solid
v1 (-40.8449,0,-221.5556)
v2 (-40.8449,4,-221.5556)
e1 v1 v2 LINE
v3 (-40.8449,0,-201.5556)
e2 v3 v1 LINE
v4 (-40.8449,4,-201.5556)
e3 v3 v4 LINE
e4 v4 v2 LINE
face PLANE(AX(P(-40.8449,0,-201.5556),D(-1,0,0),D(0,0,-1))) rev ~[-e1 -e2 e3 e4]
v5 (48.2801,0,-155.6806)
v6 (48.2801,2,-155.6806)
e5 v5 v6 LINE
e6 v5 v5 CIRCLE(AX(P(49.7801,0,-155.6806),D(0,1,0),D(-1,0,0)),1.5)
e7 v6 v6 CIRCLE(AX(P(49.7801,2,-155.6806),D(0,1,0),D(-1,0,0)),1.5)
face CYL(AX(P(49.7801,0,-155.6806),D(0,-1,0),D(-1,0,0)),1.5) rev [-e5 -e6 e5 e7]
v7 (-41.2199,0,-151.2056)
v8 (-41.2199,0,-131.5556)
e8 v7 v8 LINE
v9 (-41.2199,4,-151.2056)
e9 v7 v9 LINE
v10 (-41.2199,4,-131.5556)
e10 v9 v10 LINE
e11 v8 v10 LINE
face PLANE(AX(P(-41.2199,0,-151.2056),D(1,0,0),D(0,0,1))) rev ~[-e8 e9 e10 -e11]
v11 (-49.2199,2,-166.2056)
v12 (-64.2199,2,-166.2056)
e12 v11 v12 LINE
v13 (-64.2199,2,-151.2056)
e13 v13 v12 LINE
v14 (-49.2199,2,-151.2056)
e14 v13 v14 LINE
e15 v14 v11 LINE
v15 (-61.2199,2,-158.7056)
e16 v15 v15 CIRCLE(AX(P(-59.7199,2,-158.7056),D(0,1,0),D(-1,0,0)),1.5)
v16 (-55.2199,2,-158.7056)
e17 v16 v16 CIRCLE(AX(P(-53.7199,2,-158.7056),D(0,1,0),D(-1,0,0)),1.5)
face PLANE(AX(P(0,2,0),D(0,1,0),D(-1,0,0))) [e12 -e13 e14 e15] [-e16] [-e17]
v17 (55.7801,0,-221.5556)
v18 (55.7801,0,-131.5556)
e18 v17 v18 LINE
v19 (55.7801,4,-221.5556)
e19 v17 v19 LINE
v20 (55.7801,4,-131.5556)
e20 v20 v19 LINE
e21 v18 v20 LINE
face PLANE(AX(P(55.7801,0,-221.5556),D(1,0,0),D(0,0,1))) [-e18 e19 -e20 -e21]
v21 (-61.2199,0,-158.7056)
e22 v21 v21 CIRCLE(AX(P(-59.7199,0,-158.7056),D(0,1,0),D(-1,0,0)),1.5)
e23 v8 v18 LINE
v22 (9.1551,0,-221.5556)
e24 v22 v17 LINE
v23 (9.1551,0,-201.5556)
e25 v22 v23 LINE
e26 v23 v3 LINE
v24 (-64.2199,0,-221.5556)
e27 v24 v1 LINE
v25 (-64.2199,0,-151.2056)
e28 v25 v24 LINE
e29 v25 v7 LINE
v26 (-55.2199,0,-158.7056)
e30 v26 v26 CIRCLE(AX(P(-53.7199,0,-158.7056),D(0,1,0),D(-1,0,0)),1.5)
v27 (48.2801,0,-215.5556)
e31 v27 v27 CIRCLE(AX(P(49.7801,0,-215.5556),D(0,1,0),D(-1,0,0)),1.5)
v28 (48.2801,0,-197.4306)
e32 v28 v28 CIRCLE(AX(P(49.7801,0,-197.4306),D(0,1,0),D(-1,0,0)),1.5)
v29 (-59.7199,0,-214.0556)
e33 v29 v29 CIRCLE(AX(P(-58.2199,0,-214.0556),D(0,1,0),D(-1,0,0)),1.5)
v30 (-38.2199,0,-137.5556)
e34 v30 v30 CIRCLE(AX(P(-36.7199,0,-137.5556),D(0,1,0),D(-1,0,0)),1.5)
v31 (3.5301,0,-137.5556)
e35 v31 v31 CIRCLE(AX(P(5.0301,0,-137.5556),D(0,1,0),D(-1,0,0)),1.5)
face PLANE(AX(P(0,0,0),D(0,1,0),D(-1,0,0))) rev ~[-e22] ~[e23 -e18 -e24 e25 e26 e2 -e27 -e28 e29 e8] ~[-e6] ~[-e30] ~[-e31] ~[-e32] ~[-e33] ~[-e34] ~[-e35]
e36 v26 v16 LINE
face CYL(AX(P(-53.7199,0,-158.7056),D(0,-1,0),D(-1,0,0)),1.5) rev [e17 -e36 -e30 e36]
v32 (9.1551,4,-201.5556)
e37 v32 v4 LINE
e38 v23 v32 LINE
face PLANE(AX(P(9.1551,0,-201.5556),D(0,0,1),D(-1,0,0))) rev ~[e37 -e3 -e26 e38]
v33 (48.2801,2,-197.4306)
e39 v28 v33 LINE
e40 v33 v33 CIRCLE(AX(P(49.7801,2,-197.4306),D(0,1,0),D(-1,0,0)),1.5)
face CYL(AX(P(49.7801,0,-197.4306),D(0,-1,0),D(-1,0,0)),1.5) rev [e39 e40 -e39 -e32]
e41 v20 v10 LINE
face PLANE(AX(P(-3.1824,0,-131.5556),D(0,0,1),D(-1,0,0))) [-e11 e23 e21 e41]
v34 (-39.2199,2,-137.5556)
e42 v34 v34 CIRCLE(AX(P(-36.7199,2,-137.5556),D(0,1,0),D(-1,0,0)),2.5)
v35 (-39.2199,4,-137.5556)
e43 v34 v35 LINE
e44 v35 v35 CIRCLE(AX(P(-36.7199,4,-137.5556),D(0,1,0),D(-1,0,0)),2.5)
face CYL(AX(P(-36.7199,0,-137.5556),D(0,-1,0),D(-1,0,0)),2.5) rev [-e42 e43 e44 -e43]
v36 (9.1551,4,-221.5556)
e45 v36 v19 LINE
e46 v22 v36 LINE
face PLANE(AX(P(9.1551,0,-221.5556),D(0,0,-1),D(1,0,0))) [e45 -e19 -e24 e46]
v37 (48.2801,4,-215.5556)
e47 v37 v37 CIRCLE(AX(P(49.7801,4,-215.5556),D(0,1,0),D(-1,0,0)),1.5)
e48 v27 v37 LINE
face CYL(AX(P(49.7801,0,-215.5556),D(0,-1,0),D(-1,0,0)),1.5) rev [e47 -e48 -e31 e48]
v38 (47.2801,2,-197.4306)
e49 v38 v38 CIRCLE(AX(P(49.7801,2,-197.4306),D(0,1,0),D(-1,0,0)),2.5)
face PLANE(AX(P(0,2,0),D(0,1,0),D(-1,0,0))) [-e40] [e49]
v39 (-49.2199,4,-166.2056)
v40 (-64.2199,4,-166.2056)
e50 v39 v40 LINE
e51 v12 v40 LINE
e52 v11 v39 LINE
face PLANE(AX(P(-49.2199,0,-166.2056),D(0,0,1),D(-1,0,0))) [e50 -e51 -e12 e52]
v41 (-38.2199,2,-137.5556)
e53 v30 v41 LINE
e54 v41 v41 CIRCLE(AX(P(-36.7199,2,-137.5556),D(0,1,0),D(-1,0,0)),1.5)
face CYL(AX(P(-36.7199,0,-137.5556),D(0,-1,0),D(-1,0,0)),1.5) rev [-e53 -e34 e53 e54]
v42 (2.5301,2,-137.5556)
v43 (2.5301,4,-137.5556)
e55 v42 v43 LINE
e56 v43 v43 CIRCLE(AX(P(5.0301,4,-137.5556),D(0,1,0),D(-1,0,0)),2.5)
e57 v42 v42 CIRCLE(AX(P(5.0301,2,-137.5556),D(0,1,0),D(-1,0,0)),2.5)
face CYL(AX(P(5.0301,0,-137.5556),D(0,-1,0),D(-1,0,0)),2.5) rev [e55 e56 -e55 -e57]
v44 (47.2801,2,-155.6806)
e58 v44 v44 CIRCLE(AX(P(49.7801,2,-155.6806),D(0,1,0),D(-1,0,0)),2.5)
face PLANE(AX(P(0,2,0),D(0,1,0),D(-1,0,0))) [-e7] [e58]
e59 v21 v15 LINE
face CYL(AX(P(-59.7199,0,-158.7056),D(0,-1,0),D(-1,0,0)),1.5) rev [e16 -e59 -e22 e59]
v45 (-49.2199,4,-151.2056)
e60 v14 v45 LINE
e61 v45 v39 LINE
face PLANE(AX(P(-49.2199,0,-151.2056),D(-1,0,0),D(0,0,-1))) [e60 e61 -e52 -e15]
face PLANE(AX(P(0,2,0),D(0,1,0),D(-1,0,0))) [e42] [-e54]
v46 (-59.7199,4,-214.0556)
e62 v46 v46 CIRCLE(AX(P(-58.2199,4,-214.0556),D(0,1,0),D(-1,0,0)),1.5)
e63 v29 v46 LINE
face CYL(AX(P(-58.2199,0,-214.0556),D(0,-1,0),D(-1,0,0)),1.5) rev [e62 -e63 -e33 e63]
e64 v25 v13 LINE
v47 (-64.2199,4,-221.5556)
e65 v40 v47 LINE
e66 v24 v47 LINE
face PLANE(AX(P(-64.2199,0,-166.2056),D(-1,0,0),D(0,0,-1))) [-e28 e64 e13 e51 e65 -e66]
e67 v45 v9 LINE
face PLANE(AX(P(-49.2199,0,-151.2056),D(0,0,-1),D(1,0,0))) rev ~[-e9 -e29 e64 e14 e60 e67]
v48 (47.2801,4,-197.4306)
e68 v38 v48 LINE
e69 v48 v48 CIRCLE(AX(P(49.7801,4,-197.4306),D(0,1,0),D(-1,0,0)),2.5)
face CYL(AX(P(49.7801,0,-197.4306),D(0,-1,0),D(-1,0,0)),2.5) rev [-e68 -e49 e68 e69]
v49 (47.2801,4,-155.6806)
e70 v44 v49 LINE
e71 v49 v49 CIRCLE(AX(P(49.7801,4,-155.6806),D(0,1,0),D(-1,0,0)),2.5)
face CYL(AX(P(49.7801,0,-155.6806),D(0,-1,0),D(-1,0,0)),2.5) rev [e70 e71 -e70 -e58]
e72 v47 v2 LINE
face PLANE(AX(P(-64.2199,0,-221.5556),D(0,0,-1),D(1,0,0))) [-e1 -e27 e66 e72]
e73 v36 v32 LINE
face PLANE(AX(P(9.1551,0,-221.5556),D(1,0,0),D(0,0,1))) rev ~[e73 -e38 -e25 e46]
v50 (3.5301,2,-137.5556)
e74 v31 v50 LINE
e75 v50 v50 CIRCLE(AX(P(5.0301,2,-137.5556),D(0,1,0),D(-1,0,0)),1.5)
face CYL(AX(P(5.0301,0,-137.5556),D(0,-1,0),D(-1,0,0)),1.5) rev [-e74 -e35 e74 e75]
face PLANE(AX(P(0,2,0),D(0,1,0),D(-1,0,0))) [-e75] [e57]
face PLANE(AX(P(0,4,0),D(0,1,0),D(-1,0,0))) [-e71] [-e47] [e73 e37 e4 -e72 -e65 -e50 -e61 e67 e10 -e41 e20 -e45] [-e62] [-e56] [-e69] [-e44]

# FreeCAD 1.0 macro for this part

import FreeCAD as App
import Part
import Sketcher

V = App.Vector

doc = App.newDocument("Part")
body = doc.addObject("PartDesign::Body", "Body")

# Sketch on XZ plane
sketch1 = body.newObject("Sketcher::SketchObject", "Sketch")
sketch1.AttachmentSupport = (doc.getObject("XZ_Plane"), [""])
sketch1.MapMode = "FlatFace"
sketch1.addGeometry(Part.LineSegment(V(-41.2, -151.2, 0), V(-41.2, -131.6, 0)), False)
sketch1.addGeometry(Part.LineSegment(V(-41.2, -131.6, 0), V(55.8, -131.6, 0)), False)
sketch1.addGeometry(Part.LineSegment(V(55.8, -131.6, 0), V(55.8, -221.6, 0)), False)
sketch1.addGeometry(Part.LineSegment(V(55.8, -221.6, 0), V(9.2, -221.6, 0)), False)
sketch1.addGeometry(Part.LineSegment(V(9.2, -221.6, 0), V(9.2, -201.6, 0)), False)
sketch1.addGeometry(Part.LineSegment(V(9.2, -201.6, 0), V(-40.8, -201.6, 0)), False)
sketch1.addGeometry(Part.LineSegment(V(-40.8, -201.6, 0), V(-40.8, -221.6, 0)), False)
sketch1.addGeometry(Part.LineSegment(V(-40.8, -221.6, 0), V(-64.2, -221.6, 0)), False)
sketch1.addGeometry(Part.LineSegment(V(-64.2, -221.6, 0), V(-64.2, -166.2, 0)), False)
sketch1.addGeometry(Part.LineSegment(V(-64.2, -166.2, 0), V(-49.2, -166.2, 0)), False)
sketch1.addGeometry(Part.LineSegment(V(-49.2, -166.2, 0), V(-49.2, -151.2, 0)), False)
sketch1.addGeometry(Part.LineSegment(V(-49.2, -151.2, 0), V(-41.2, -151.2, 0)), False)
sketch1.addGeometry(Part.Circle(V(49.8, -215.6, 0), V(0, 0, 1), 1.5), False)
sketch1.addGeometry(Part.Circle(V(49.8, -197.4, 0), V(0, 0, 1), 2.5), False)
sketch1.addGeometry(Part.Circle(V(-58.2, -214.1, 0), V(0, 0, 1), 1.5), False)
sketch1.addGeometry(Part.Circle(V(49.8, -155.7, 0), V(0, 0, 1), 2.5), False)
sketch1.addGeometry(Part.Circle(V(5, -137.6, 0), V(0, 0, 1), 2.5), False)
sketch1.addGeometry(Part.Circle(V(-36.7, -137.6, 0), V(0, 0, 1), 2.5), False)
sketch1.addConstraint(Sketcher.Constraint("Coincident", 0, 2, 1, 1))
sketch1.addConstraint(Sketcher.Constraint("Coincident", 1, 2, 2, 1))
sketch1.addConstraint(Sketcher.Constraint("Coincident", 2, 2, 3, 1))
sketch1.addConstraint(Sketcher.Constraint("Coincident", 3, 2, 4, 1))
sketch1.addConstraint(Sketcher.Constraint("Coincident", 4, 2, 5, 1))
sketch1.addConstraint(Sketcher.Constraint("Coincident", 5, 2, 6, 1))
sketch1.addConstraint(Sketcher.Constraint("Coincident", 6, 2, 7, 1))
sketch1.addConstraint(Sketcher.Constraint("Coincident", 7, 2, 8, 1))
sketch1.addConstraint(Sketcher.Constraint("Coincident", 8, 2, 9, 1))
sketch1.addConstraint(Sketcher.Constraint("Coincident", 9, 2, 10, 1))
sketch1.addConstraint(Sketcher.Constraint("Coincident", 10, 2, 11, 1))
sketch1.addConstraint(Sketcher.Constraint("Coincident", 11, 2, 0, 1))
sketch1.addConstraint(Sketcher.Constraint("Vertical", 0))
sketch1.addConstraint(Sketcher.Constraint("Horizontal", 1))
sketch1.addConstraint(Sketcher.Constraint("Vertical", 2))
sketch1.addConstraint(Sketcher.Constraint("Horizontal", 3))
sketch1.addConstraint(Sketcher.Constraint("Vertical", 4))
sketch1.addConstraint(Sketcher.Constraint("Horizontal", 5))
sketch1.addConstraint(Sketcher.Constraint("Vertical", 6))
sketch1.addConstraint(Sketcher.Constraint("Horizontal", 7))
sketch1.addConstraint(Sketcher.Constraint("Vertical", 8))
sketch1.addConstraint(Sketcher.Constraint("Horizontal", 9))
sketch1.addConstraint(Sketcher.Constraint("Vertical", 10))
sketch1.addConstraint(Sketcher.Constraint("Horizontal", 11))
sketch1.addConstraint(Sketcher.Constraint("Equal", 12, 14))
sketch1.addConstraint(Sketcher.Constraint("Equal", 13, 15))
sketch1.addConstraint(Sketcher.Constraint("Equal", 15, 16))
sketch1.addConstraint(Sketcher.Constraint("Equal", 16, 17))
sketch1.addConstraint(Sketcher.Constraint("Horizontal", 16, 3, 17, 3))
sketch1.addConstraint(Sketcher.Constraint("Horizontal", 3, 2, 6, 2))
sketch1.addConstraint(Sketcher.Constraint("Vertical", 12, 3, 13, 3))
sketch1.addConstraint(Sketcher.Constraint("Vertical", 13, 3, 15, 3))
sketch1.addConstraint(Sketcher.Constraint("Equal", 9, 10))
sketch1.addConstraint(Sketcher.Constraint("DistanceX", 11, 1, 11, 2, 8.0))
sketch1.addConstraint(Sketcher.Constraint("Diameter", 12, 3.0))
sketch1.addConstraint(Sketcher.Constraint("Diameter", 13, 5.0))
sketch1.addConstraint(Sketcher.Constraint("DistanceY", 3, 2, 14, 3, 7.5))
sketch1.addConstraint(Sketcher.Constraint("DistanceX", 1, 1, 1, 2, 97.0))
sketch1.addConstraint(Sketcher.Constraint("DistanceX", 5, 2, 5, 1, 50.0))
sketch1.addConstraint(Sketcher.Constraint("DistanceX", 9, 1, 9, 2, 15.0))
sketch1.addConstraint(Sketcher.Constraint("DistanceY", 2, 2, 2, 1, 90.0))
sketch1.addConstraint(Sketcher.Constraint("DistanceY", 4, 1, 4, 2, 20.0))
sketch1.addConstraint(Sketcher.Constraint("DistanceX", 14, 3, 12, 3, 108.0))
sketch1.addConstraint(Sketcher.Constraint("DistanceY", 12, 3, 16, 3, 78.0))
sketch1.addConstraint(Sketcher.Constraint("DistanceY", 17, 3, 0, 2, 6.0))
sketch1.addConstraint(Sketcher.Constraint("DistanceX", 14, 3, 0, 2, 17.0))
sketch1.addConstraint(Sketcher.Constraint("DistanceY", 0, 1, 0, 2, 19.65))
sketch1.addConstraint(Sketcher.Constraint("DistanceX", 14, 3, 17, 3, 21.5))
sketch1.addConstraint(Sketcher.Constraint("DistanceX", 3, 2, 3, 1, 46.625))
sketch1.addConstraint(Sketcher.Constraint("DistanceX", -1, 1, 12, 3, 49.78))
sketch1.addConstraint(Sketcher.Constraint("DistanceX", -1, 1, 16, 3, 5.03))
sketch1.addConstraint(Sketcher.Constraint("DistanceY", 13, 3, 15, 3, 41.75))
sketch1.addConstraint(Sketcher.Constraint("DistanceY", 12, 3, 13, 3, 18.125))
sketch1.addConstraint(Sketcher.Constraint("DistanceY", 12, 3, -1, 1, 215.5556))
pad1 = body.newObject("PartDesign::Pad", "Pad")
pad1.Profile = sketch1
pad1.Length = 4
pad1.Reversed = True

# Sketch on XZ plane
sketch2 = body.newObject("Sketcher::SketchObject", "Sketch001")
sketch2.AttachmentSupport = (doc.getObject("XZ_Plane"), [""])
sketch2.MapMode = "FlatFace"
sketch2.addGeometry(Part.LineSegment(V(-64.2, -166.2, 0), V(-64.2, -151.2, 0)), False)
sketch2.addGeometry(Part.LineSegment(V(-64.2, -151.2, 0), V(-49.2, -151.2, 0)), False)
sketch2.addGeometry(Part.LineSegment(V(-49.2, -151.2, 0), V(-49.2, -166.2, 0)), False)
sketch2.addGeometry(Part.LineSegment(V(-49.2, -166.2, 0), V(-64.2, -166.2, 0)), False)
sketch2.addGeometry(Part.Circle(V(-53.7, -158.7, 0), V(0, 0, 1), 1.5), False)
sketch2.addGeometry(Part.Circle(V(-59.7, -158.7, 0), V(0, 0, 1), 1.5), False)
sketch2.addGeometry(Part.LineSegment(V(-3.3, -176.6, 0), V(-3.3, -196.6, 0)), False)
sketch2.addGeometry(Part.LineSegment(V(-3.3, -196.6, 0), V(-28.3, -196.6, 0)), False)
sketch2.addGeometry(Part.LineSegment(V(-28.3, -196.6, 0), V(-28.3, -176.6, 0)), False)
sketch2.addGeometry(Part.LineSegment(V(-28.3, -176.6, 0), V(-3.3, -176.6, 0)), False)
sketch2.addGeometry(Part.Circle(V(-9.8, -186.6, 0), V(0, 0, 1), 1.5), False)
sketch2.addGeometry(Part.Circle(V(-21.8, -186.6, 0), V(0, 0, 1), 1.5), False)
sketch2.addGeometry(Part.LineSegment(V(-30.8, -173.6, 0), V(-30.8, -143.6, 0)), False)
sketch2.addGeometry(Part.LineSegment(V(-30.8, -143.6, 0), V(-0.8, -143.6, 0)), False)
sketch2.addGeometry(Part.LineSegment(V(-0.8, -143.6, 0), V(-0.8, -173.6, 0)), False)
sketch2.addGeometry(Part.LineSegment(V(-0.8, -173.6, 0), V(-30.8, -173.6, 0)), False)
sketch2.addGeometry(Part.Circle(V(-23.3, -164.6, 0), V(0, 0, 1), 1.5), False)
sketch2.addGeometry(Part.Circle(V(-23.3, -152.6, 0), V(0, 0, 1), 1.5), False)
sketch2.addGeometry(Part.Circle(V(-8.3, -152.6, 0), V(0, 0, 1), 1.5), False)
sketch2.addGeometry(Part.Circle(V(-8.3, -164.6, 0), V(0, 0, 1), 1.5), False)
sketch2.addGeometry(Part.Circle(V(49.8, -155.7, 0), V(0, 0, 1), 2.5), False)
sketch2.addGeometry(Part.Circle(V(49.8, -155.7, 0), V(0, 0, 1), 1.5), False)
sketch2.addGeometry(Part.Circle(V(49.8, -197.4, 0), V(0, 0, 1), 2.5), False)
sketch2.addGeometry(Part.Circle(V(49.8, -197.4, 0), V(0, 0, 1), 1.5), False)
sketch2.addGeometry(Part.Circle(V(-36.7, -137.6, 0), V(0, 0, 1), 2.5), False)
sketch2.addGeometry(Part.Circle(V(-36.7, -137.6, 0), V(0, 0, 1), 1.5), False)
sketch2.addGeometry(Part.Circle(V(5, -137.6, 0), V(0, 0, 1), 2.5), False)
sketch2.addGeometry(Part.Circle(V(5, -137.6, 0), V(0, 0, 1), 1.5), False)
sketch2.addConstraint(Sketcher.Constraint("Coincident", 0, 2, 1, 1))
sketch2.addConstraint(Sketcher.Constraint("Coincident", 1, 2, 2, 1))
sketch2.addConstraint(Sketcher.Constraint("Coincident", 2, 2, 3, 1))
sketch2.addConstraint(Sketcher.Constraint("Coincident", 3, 2, 0, 1))
sketch2.addConstraint(Sketcher.Constraint("Coincident", 6, 2, 7, 1))
sketch2.addConstraint(Sketcher.Constraint("Coincident", 7, 2, 8, 1))
sketch2.addConstraint(Sketcher.Constraint("Coincident", 8, 2, 9, 1))
sketch2.addConstraint(Sketcher.Constraint("Coincident", 9, 2, 6, 1))
sketch2.addConstraint(Sketcher.Constraint("Coincident", 12, 2, 13, 1))
sketch2.addConstraint(Sketcher.Constraint("Coincident", 13, 2, 14, 1))
sketch2.addConstraint(Sketcher.Constraint("Coincident", 14, 2, 15, 1))
sketch2.addConstraint(Sketcher.Constraint("Coincident", 15, 2, 12, 1))
sketch2.addConstraint(Sketcher.Constraint("Vertical", 0))
sketch2.addConstraint(Sketcher.Constraint("Horizontal", 1))
sketch2.addConstraint(Sketcher.Constraint("Vertical", 2))
sketch2.addConstraint(Sketcher.Constraint("Horizontal", 3))
sketch2.addConstraint(Sketcher.Constraint("Vertical", 6))
sketch2.addConstraint(Sketcher.Constraint("Horizontal", 7))
sketch2.addConstraint(Sketcher.Constraint("Vertical", 8))
sketch2.addConstraint(Sketcher.Constraint("Horizontal", 9))
sketch2.addConstraint(Sketcher.Constraint("Vertical", 12))
sketch2.addConstraint(Sketcher.Constraint("Horizontal", 13))
sketch2.addConstraint(Sketcher.Constraint("Vertical", 14))
sketch2.addConstraint(Sketcher.Constraint("Horizontal", 15))
sketch2.addConstraint(Sketcher.Constraint("Coincident", 21, 3, 20, 3))
sketch2.addConstraint(Sketcher.Constraint("Coincident", 23, 3, 22, 3))
sketch2.addConstraint(Sketcher.Constraint("Coincident", 25, 3, 24, 3))
sketch2.addConstraint(Sketcher.Constraint("Coincident", 27, 3, 26, 3))
sketch2.addConstraint(Sketcher.Constraint("Equal", 4, 5))
sketch2.addConstraint(Sketcher.Constraint("Equal", 5, 10))
sketch2.addConstraint(Sketcher.Constraint("Equal", 10, 11))
sketch2.addConstraint(Sketcher.Constraint("Equal", 11, 16))
sketch2.addConstraint(Sketcher.Constraint("Equal", 16, 17))
sketch2.addConstraint(Sketcher.Constraint("Equal", 17, 18))
sketch2.addConstraint(Sketcher.Constraint("Equal", 18, 19))
sketch2.addConstraint(Sketcher.Constraint("Equal", 19, 21))
sketch2.addConstraint(Sketcher.Constraint("Equal", 20, 22))
sketch2.addConstraint(Sketcher.Constraint("Equal", 21, 23))
sketch2.addConstraint(Sketcher.Constraint("Equal", 22, 24))
sketch2.addConstraint(Sketcher.Constraint("Equal", 23, 25))
sketch2.addConstraint(Sketcher.Constraint("Equal", 24, 26))
sketch2.addConstraint(Sketcher.Constraint("Equal", 25, 27))
sketch2.addConstraint(Sketcher.Constraint("Horizontal", 4, 3, 5, 3))
sketch2.addConstraint(Sketcher.Constraint("Horizontal", 10, 3, 11, 3))
sketch2.addConstraint(Sketcher.Constraint("Horizontal", 17, 3, 18, 3))
sketch2.addConstraint(Sketcher.Constraint("Horizontal", 16, 3, 19, 3))
sketch2.addConstraint(Sketcher.Constraint("Horizontal", 25, 3, 26, 3))
sketch2.addConstraint(Sketcher.Constraint("Vertical", 16, 3, 17, 3))
sketch2.addConstraint(Sketcher.Constraint("Vertical", 18, 3, 19, 3))
sketch2.addConstraint(Sketcher.Constraint("Vertical", 21, 3, 22, 3))
sketch2.addConstraint(Sketcher.Constraint("Equal", 3, 0))
sketch2.addConstraint(Sketcher.Constraint("Equal", 15, 12))
sketch2.addConstraint(Sketcher.Constraint("Diameter", 4, 3.0))
sketch2.addConstraint(Sketcher.Constraint("Diameter", 20, 5.0))
sketch2.addConstraint(Sketcher.Constraint("DistanceX", 11, 3, 10, 3, 12.0))
sketch2.addConstraint(Sketcher.Constraint("DistanceY", 16, 3, 17, 3, 12.0))
sketch2.addConstraint(Sketcher.Constraint("DistanceY", 8, 2, 16, 3, 12.0))
sketch2.addConstraint(Sketcher.Constraint("DistanceY", 5, 3, 0, 2, 7.5))
sketch2.addConstraint(Sketcher.Constraint("DistanceY", 2, 2, 4, 3, 7.5))
sketch2.addConstraint(Sketcher.Constraint("DistanceX", 12, 2, 17, 3, 7.5))
sketch2.addConstraint(Sketcher.Constraint("DistanceX", 18, 3, 13, 2, 7.5))
sketch2.addConstraint(Sketcher.Constraint("DistanceX", 7, 2, 7, 1, 25.0))
sketch2.addConstraint(Sketcher.Constraint("DistanceX", 13, 1, 13, 2, 30.0))
sketch2.addConstraint(Sketcher.Constraint("DistanceY", 6, 2, 6, 1, 20.0))
sketch2.addConstraint(Sketcher.Constraint("DistanceX", 5, 3, 4, 3, 6.0))
sketch2.addConstraint(Sketcher.Constraint("DistanceY", 11, 3, 16, 3, 22.0))
sketch2.addConstraint(Sketcher.Constraint("DistanceY", 17, 3, 24, 3, 15.0))
sketch2.addConstraint(Sketcher.Constraint("DistanceX", 4, 3, 24, 3, 17.0))
sketch2.addConstraint(Sketcher.Constraint("DistanceX", 19, 3, 6, 2, 5.0))
sketch2.addConstraint(Sketcher.Constraint("DistanceY", 12, 2, 24, 3, 6.0))
sketch2.addConstraint(Sketcher.Constraint("DistanceX", 10, 3, 14, 2, 9.0))
sketch2.addConstraint(Sketcher.Constraint("DistanceX", 0, 2, 5, 3, 4.5))
sketch2.addConstraint(Sketcher.Constraint("DistanceX", 4, 3, -1, 1, 53.72))
sketch2.addConstraint(Sketcher.Constraint("DistanceX", -1, 1, 20, 3, 49.78))
sketch2.addConstraint(Sketcher.Constraint("DistanceX", -1, 1, 26, 3, 5.03))
sketch2.addConstraint(Sketcher.Constraint("DistanceY", 10, 3, 4, 3, 27.85))
sketch2.addConstraint(Sketcher.Constraint("DistanceY", 22, 3, 20, 3, 41.75))
sketch2.addConstraint(Sketcher.Constraint("DistanceX", 10, 3, -1, 1, 9.845))
sketch2.addConstraint(Sketcher.Constraint("DistanceY", 20, 3, 18, 3, 3.125))
sketch2.addConstraint(Sketcher.Constraint("DistanceY", 4, 3, -1, 1, 158.7056))
pad2 = body.newObject("PartDesign::Pad", "Pad001")
pad2.Profile = sketch2
pad2.Length = 2
pad2.Reversed = True

doc.recompute()
